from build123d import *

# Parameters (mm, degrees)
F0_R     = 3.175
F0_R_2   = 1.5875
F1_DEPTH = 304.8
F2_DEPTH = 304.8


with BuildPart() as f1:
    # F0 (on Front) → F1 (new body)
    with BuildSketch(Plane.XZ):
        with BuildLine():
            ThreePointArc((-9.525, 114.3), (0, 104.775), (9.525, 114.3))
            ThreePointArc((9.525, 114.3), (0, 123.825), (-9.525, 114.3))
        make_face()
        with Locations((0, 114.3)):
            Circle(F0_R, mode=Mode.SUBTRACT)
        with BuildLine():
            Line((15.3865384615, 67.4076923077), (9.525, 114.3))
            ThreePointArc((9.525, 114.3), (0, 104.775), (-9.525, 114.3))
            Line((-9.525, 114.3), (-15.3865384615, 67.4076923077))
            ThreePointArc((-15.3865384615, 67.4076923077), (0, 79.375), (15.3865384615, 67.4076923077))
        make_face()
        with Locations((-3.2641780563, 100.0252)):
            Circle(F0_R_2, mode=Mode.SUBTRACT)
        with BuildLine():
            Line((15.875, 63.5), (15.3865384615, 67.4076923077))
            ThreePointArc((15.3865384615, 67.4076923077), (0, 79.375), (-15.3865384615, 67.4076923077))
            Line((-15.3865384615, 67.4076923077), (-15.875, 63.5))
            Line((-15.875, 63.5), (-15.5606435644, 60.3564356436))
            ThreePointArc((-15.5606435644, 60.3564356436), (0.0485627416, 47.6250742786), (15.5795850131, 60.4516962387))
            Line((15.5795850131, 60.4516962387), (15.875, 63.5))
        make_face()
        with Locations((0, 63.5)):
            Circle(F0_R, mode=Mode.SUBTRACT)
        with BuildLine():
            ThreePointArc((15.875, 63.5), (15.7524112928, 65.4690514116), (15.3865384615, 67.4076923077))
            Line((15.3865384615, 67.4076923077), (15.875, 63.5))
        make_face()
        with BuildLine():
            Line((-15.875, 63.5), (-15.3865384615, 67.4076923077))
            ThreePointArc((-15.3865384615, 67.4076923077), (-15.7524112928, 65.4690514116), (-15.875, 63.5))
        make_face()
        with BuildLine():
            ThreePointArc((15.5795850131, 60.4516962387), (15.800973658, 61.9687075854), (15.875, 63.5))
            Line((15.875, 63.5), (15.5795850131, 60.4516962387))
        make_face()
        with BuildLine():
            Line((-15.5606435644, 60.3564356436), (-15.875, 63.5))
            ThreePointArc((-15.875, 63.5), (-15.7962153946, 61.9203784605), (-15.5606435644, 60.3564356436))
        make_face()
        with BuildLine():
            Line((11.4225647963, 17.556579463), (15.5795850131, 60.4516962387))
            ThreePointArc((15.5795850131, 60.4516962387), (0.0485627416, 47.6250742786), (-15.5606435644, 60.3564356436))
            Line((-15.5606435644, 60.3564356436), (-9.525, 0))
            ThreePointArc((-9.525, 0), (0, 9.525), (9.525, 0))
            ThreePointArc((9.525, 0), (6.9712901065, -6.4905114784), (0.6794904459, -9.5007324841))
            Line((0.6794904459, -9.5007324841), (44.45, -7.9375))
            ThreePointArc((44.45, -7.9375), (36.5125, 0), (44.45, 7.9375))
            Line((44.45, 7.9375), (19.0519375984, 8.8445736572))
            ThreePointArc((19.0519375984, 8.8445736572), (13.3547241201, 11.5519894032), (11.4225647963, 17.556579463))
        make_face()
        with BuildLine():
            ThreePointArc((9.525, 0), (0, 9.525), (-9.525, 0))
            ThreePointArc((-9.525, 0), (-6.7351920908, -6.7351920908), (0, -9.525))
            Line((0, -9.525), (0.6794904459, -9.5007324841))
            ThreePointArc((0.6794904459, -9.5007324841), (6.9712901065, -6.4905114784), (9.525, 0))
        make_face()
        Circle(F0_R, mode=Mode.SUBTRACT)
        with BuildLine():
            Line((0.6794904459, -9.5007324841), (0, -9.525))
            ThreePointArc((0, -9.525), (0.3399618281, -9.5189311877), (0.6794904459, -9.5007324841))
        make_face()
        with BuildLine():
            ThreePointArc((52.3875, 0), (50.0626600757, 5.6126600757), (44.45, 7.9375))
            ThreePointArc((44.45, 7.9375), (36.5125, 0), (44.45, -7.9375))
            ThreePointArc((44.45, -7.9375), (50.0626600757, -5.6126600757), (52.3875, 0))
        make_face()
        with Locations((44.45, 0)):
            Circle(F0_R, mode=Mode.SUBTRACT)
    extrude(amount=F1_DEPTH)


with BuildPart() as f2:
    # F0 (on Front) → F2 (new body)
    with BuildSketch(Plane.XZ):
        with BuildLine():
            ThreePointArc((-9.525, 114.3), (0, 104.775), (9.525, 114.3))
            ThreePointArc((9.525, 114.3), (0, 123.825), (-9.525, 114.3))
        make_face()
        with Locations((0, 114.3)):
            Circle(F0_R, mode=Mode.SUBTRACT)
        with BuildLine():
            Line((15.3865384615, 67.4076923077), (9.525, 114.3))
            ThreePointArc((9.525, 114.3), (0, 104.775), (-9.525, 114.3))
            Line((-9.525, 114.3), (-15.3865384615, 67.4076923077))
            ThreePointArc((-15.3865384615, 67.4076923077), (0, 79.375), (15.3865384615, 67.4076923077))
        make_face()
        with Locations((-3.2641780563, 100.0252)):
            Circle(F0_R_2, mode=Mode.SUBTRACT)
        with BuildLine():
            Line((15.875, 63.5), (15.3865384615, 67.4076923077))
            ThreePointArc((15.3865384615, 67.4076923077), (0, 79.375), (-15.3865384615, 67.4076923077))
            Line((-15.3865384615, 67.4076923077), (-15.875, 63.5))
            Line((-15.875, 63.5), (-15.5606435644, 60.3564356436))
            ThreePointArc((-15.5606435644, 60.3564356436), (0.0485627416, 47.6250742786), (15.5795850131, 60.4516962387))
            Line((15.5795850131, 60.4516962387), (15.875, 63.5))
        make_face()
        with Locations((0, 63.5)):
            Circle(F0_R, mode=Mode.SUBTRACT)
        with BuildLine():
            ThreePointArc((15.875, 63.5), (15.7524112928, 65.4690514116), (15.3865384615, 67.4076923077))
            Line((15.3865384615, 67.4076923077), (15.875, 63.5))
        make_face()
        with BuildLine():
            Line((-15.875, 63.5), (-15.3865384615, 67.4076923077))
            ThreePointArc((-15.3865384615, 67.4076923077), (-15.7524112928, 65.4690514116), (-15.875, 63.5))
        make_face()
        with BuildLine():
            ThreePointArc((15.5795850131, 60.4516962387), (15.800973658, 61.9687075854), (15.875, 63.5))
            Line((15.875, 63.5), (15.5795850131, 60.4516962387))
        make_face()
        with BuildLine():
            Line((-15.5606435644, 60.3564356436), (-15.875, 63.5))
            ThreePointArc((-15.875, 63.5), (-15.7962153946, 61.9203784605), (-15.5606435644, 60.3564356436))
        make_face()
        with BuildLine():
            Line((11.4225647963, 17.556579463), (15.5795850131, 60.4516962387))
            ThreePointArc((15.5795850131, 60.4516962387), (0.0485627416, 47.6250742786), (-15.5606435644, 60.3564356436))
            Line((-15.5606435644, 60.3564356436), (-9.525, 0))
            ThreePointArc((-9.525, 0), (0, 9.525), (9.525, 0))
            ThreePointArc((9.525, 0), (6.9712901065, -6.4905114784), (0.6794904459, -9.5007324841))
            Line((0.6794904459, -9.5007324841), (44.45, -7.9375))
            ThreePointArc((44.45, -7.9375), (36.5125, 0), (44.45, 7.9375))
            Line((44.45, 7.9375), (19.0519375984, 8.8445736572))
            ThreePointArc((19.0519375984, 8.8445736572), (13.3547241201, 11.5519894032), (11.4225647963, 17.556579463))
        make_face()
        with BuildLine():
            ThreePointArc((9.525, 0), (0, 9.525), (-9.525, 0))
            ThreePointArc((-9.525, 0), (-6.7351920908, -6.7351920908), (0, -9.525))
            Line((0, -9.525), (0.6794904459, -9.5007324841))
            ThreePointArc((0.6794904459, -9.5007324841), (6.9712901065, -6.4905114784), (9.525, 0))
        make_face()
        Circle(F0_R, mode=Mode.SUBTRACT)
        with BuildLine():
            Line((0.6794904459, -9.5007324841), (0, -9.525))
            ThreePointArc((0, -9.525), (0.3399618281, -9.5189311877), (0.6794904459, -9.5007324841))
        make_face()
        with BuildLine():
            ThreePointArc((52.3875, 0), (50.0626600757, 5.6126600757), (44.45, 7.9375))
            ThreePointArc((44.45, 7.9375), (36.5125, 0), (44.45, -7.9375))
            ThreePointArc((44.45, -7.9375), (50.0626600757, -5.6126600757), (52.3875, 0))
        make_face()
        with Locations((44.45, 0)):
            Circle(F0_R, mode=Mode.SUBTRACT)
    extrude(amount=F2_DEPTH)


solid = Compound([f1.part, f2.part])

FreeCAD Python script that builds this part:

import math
import FreeCAD as App
import Part
import Sketcher
from FreeCAD import Vector
Q = App.Units.Quantity

doc = App.newDocument("Part")
body = doc.addObject("PartDesign::Body", "Body")

# Sketch on XZ plane
sketch1 = doc.addObject("Sketcher::SketchObject", "Sketch")
body.addObject(sketch1)
sketch1.AttachmentSupport = (doc.XZ_Plane, [""])
sketch1.MapMode = "FlatFace"
sketch1.addGeometry([
    Part.ArcOfCircle(Part.Circle(Vector(0, 114.3, 0), Vector(0, 0, 1), 9.5), math.radians(0), math.radians(180)),  # 0
    Part.LineSegment(Vector(-9.5, 114.3, 0), Vector(-15.4, 67.4, 0)),  # 1
    Part.ArcOfCircle(Part.Circle(Vector(0, 63.5, 0), Vector(0, 0, 1), 15.9), math.radians(165.75), math.radians(180)),  # 2
    Part.ArcOfCircle(Part.Circle(Vector(0, 63.5, 0), Vector(0, 0, 1), 15.9), math.radians(180), math.radians(191.42)),  # 3
    Part.LineSegment(Vector(-15.6, 60.4, 0), Vector(-9.5, 0, 0)),  # 4
    Part.ArcOfCircle(Part.Circle(Vector(0, 0, 0), Vector(0, 0, 1), 9.5), math.radians(180), math.radians(270)),  # 5
    Part.ArcOfCircle(Part.Circle(Vector(0, 0, 0), Vector(0, 0, 1), 9.5), math.radians(-90), math.radians(-85.91)),  # 6
    Part.LineSegment(Vector(0.7, -9.5, 0), Vector(44.5, -7.9, 0)),  # 7
    Part.ArcOfCircle(Part.Circle(Vector(44.5, 0, 0), Vector(0, 0, 1), 7.9), math.radians(-90), math.radians(0)),  # 8
    Part.ArcOfCircle(Part.Circle(Vector(44.5, 0, 0), Vector(0, 0, 1), 7.9), math.radians(0), math.radians(90)),  # 9
    Part.LineSegment(Vector(44.5, 7.9, 0), Vector(19.1, 8.8, 0)),  # 10
    Part.ArcOfCircle(Part.Circle(Vector(19.3, 16.8, 0), Vector(0, 0, 1), 8), math.radians(174), math.radians(268)),  # 11
    Part.LineSegment(Vector(11.4, 17.6, 0), Vector(15.6, 60.5, 0)),  # 12
    Part.ArcOfCircle(Part.Circle(Vector(0, 63.5, 0), Vector(0, 0, 1), 15.9), math.radians(-11.07), math.radians(0)),  # 13
    Part.ArcOfCircle(Part.Circle(Vector(0, 63.5, 0), Vector(0, 0, 1), 15.9), math.radians(0), math.radians(14.25)),  # 14
    Part.LineSegment(Vector(15.4, 67.4, 0), Vector(9.5, 114.3, 0)),  # 15
    Part.Circle(Vector(0, 0, 0), Vector(0, 0, 1), 3.2),  # 16
    Part.Circle(Vector(44.5, 0, 0), Vector(0, 0, 1), 3.2),  # 17
    Part.Circle(Vector(0, 63.5, 0), Vector(0, 0, 1), 3.2),  # 18
    Part.Circle(Vector(-3.3, 100, 0), Vector(0, 0, 1), 1.6),  # 19
    Part.Circle(Vector(0, 114.3, 0), Vector(0, 0, 1), 3.2),  # 20
], False)
sketch1.addConstraint([
    Sketcher.Constraint("Coincident", 0, 2, 1, 1),
    Sketcher.Constraint("Coincident", 1, 2, 2, 1),
    Sketcher.Constraint("Tangent", 2, 2, 3, 1),
    Sketcher.Constraint("Coincident", 3, 2, 4, 1),
    Sketcher.Constraint("Coincident", 4, 2, 5, 1),
    Sketcher.Constraint("Tangent", 5, 2, 6, 1),
    Sketcher.Constraint("Coincident", 6, 2, 7, 1),
    Sketcher.Constraint("Coincident", 7, 2, 8, 1),
    Sketcher.Constraint("Tangent", 8, 2, 9, 1),
    Sketcher.Constraint("Coincident", 9, 2, 10, 1),
    Sketcher.Constraint("Tangent", 10, 2, 11, 2),
    Sketcher.Constraint("Tangent", 11, 1, 12, 1),
    Sketcher.Constraint("Coincident", 12, 2, 13, 1),
    Sketcher.Constraint("Tangent", 13, 2, 14, 1),
    Sketcher.Constraint("Coincident", 14, 2, 15, 1),
    Sketcher.Constraint("Coincident", 15, 2, 0, 1),
    Sketcher.Constraint("Coincident", 5, 3, -1, 1),
    Sketcher.Constraint("Coincident", 16, 3, -1, 1),
    Sketcher.Constraint("Coincident", 13, 3, 2, 3),
    Sketcher.Constraint("Coincident", 17, 3, 8, 3),
    Sketcher.Constraint("Coincident", 18, 3, 2, 3),
    Sketcher.Constraint("Coincident", 20, 3, 0, 3),
    Sketcher.Constraint("Equal", 2, 3),
    Sketcher.Constraint("Equal", 0, 5),
    Sketcher.Constraint("Equal", 5, 6),
    Sketcher.Constraint("Equal", 8, 9),
    Sketcher.Constraint("Equal", 3, 13),
    Sketcher.Constraint("Equal", 13, 14),
    Sketcher.Constraint("Equal", 16, 17),
    Sketcher.Constraint("Equal", 17, 18),
    Sketcher.Constraint("Equal", 18, 20),
    Sketcher.Constraint("Symmetric", 2, 2, 13, 2, -2),
    Sketcher.Constraint("Symmetric", 0, 2, 15, 2, -2),
    Sketcher.Constraint("Symmetric", 7, 2, 9, 2, -1),
    Sketcher.Constraint("PointOnObject", 4, 2, -1),
    Sketcher.Constraint("PointOnObject", 5, 2, -2),
    Sketcher.Constraint("PointOnObject", 8, 2, -1),
    Sketcher.Constraint("Horizontal", 20, 3, 0, 2),
    Sketcher.Constraint("Horizontal", 18, 3, 2, 2),
    Sketcher.Constraint("Horizontal", 1, 2, 14, 2),
    Sketcher.Constraint("Vertical", 17, 3, 7, 2),
    Sketcher.Constraint("Diameter", 16, Q("0.25 in")),
    Sketcher.Constraint("Diameter", 19, Q("0.125 in")),
    Sketcher.Constraint("Radius", 0, Q("0.375 in")),
    Sketcher.Constraint("Radius", 2, Q("0.625 in")),
    Sketcher.Constraint("Radius", 8, Q("0.3125 in")),
    Sketcher.Constraint("Radius", 11, Q("0.313 in")),
    Sketcher.Constraint("DistanceY", 2, 3, 0, 3, Q("2 in")),
    Sketcher.Constraint("DistanceY", -1, 1, 0, 3, Q("4.5 in")),
    Sketcher.Constraint("DistanceX", -1, 1, 8, 3, Q("1.75 in")),
    Sketcher.Constraint("DistanceY", -1, 1, 19, 3, Q("3.938 in")),
    Sketcher.Constraint("DistanceY", -1, 1, 11, 3, Q("16.789708 mm")),
    Sketcher.Constraint("DistanceX", 19, 3, -1, 1, Q("3.264178 mm")),
    Sketcher.Constraint("DistanceX", 1, 2, -1, 1, Q("15.386538 mm")),
    Sketcher.Constraint("DistanceX", -1, 1, 6, 2, Q("0.67949 mm")),
    Sketcher.Constraint("DistanceY", -1, 1, 11, 1, Q("17.556579 mm")),
    Sketcher.Constraint("Distance", 4, Q("60.657467 mm")),
    Sketcher.Constraint("Distance", 10, Q("25.414255 mm")),
])
pad1 = doc.addObject("PartDesign::Pad", "Pad")
body.addObject(pad1)
pad1.Profile = sketch1
pad1.Length = Q("12 in")
body2 = doc.addObject("PartDesign::Body", "Body001")

# Sketch on XZ plane
sketch2 = doc.addObject("Sketcher::SketchObject", "Sketch001")
body2.addObject(sketch2)
sketch2.AttachmentSupport = (doc.getObject("XZ_Plane001"), [""])
sketch2.MapMode = "FlatFace"
sketch2.addGeometry([
    Part.ArcOfCircle(Part.Circle(Vector(0, 114.3, 0), Vector(0, 0, 1), 9.5), math.radians(0), math.radians(180)),  # 0
    Part.LineSegment(Vector(-9.5, 114.3, 0), Vector(-15.4, 67.4, 0)),  # 1
    Part.ArcOfCircle(Part.Circle(Vector(0, 63.5, 0), Vector(0, 0, 1), 15.9), math.radians(165.75), math.radians(180)),  # 2
    Part.ArcOfCircle(Part.Circle(Vector(0, 63.5, 0), Vector(0, 0, 1), 15.9), math.radians(180), math.radians(191.42)),  # 3
    Part.LineSegment(Vector(-15.6, 60.4, 0), Vector(-9.5, 0, 0)),  # 4
    Part.ArcOfCircle(Part.Circle(Vector(0, 0, 0), Vector(0, 0, 1), 9.5), math.radians(180), math.radians(270)),  # 5
    Part.ArcOfCircle(Part.Circle(Vector(0, 0, 0), Vector(0, 0, 1), 9.5), math.radians(-90), math.radians(-85.91)),  # 6
    Part.LineSegment(Vector(0.7, -9.5, 0), Vector(44.5, -7.9, 0)),  # 7
    Part.ArcOfCircle(Part.Circle(Vector(44.5, 0, 0), Vector(0, 0, 1), 7.9), math.radians(-90), math.radians(0)),  # 8
    Part.ArcOfCircle(Part.Circle(Vector(44.5, 0, 0), Vector(0, 0, 1), 7.9), math.radians(0), math.radians(90)),  # 9
    Part.LineSegment(Vector(44.5, 7.9, 0), Vector(19.1, 8.8, 0)),  # 10
    Part.ArcOfCircle(Part.Circle(Vector(19.3, 16.8, 0), Vector(0, 0, 1), 8), math.radians(174), math.radians(268)),  # 11
    Part.LineSegment(Vector(11.4, 17.6, 0), Vector(15.6, 60.5, 0)),  # 12
    Part.ArcOfCircle(Part.Circle(Vector(0, 63.5, 0), Vector(0, 0, 1), 15.9), math.radians(-11.07), math.radians(0)),  # 13
    Part.ArcOfCircle(Part.Circle(Vector(0, 63.5, 0), Vector(0, 0, 1), 15.9), math.radians(0), math.radians(14.25)),  # 14
    Part.LineSegment(Vector(15.4, 67.4, 0), Vector(9.5, 114.3, 0)),  # 15
    Part.Circle(Vector(0, 0, 0), Vector(0, 0, 1), 3.2),  # 16
    Part.Circle(Vector(44.5, 0, 0), Vector(0, 0, 1), 3.2),  # 17
    Part.Circle(Vector(0, 63.5, 0), Vector(0, 0, 1), 3.2),  # 18
    Part.Circle(Vector(-3.3, 100, 0), Vector(0, 0, 1), 1.6),  # 19
    Part.Circle(Vector(0, 114.3, 0), Vector(0, 0, 1), 3.2),  # 20
], False)
sketch2.addConstraint([
    Sketcher.Constraint("Coincident", 0, 2, 1, 1),
    Sketcher.Constraint("Coincident", 1, 2, 2, 1),
    Sketcher.Constraint("Tangent", 2, 2, 3, 1),
    Sketcher.Constraint("Coincident", 3, 2, 4, 1),
    Sketcher.Constraint("Coincident", 4, 2, 5, 1),
    Sketcher.Constraint("Tangent", 5, 2, 6, 1),
    Sketcher.Constraint("Coincident", 6, 2, 7, 1),
    Sketcher.Constraint("Coincident", 7, 2, 8, 1),
    Sketcher.Constraint("Tangent", 8, 2, 9, 1),
    Sketcher.Constraint("Coincident", 9, 2, 10, 1),
    Sketcher.Constraint("Tangent", 10, 2, 11, 2),
    Sketcher.Constraint("Tangent", 11, 1, 12, 1),
    Sketcher.Constraint("Coincident", 12, 2, 13, 1),
    Sketcher.Constraint("Tangent", 13, 2, 14, 1),
    Sketcher.Constraint("Coincident", 14, 2, 15, 1),
    Sketcher.Constraint("Coincident", 15, 2, 0, 1),
    Sketcher.Constraint("Coincident", 5, 3, -1, 1),
    Sketcher.Constraint("Coincident", 16, 3, -1, 1),
    Sketcher.Constraint("Coincident", 13, 3, 2, 3),
    Sketcher.Constraint("Coincident", 17, 3, 8, 3),
    Sketcher.Constraint("Coincident", 18, 3, 2, 3),
    Sketcher.Constraint("Coincident", 20, 3, 0, 3),
    Sketcher.Constraint("Equal", 2, 3),
    Sketcher.Constraint("Equal", 0, 5),
    Sketcher.Constraint("Equal", 5, 6),
    Sketcher.Constraint("Equal", 8, 9),
    Sketcher.Constraint("Equal", 3, 13),
    Sketcher.Constraint("Equal", 13, 14),
    Sketcher.Constraint("Equal", 16, 17),
    Sketcher.Constraint("Equal", 17, 18),
    Sketcher.Constraint("Equal", 18, 20),
    Sketcher.Constraint("Symmetric", 2, 2, 13, 2, -2),
    Sketcher.Constraint("Symmetric", 0, 2, 15, 2, -2),
    Sketcher.Constraint("Symmetric", 7, 2, 9, 2, -1),
    Sketcher.Constraint("PointOnObject", 4, 2, -1),
    Sketcher.Constraint("PointOnObject", 5, 2, -2),
    Sketcher.Constraint("PointOnObject", 8, 2, -1),
    Sketcher.Constraint("Horizontal", 20, 3, 0, 2),
    Sketcher.Constraint("Horizontal", 18, 3, 2, 2),
    Sketcher.Constraint("Horizontal", 1, 2, 14, 2),
    Sketcher.Constraint("Vertical", 17, 3, 7, 2),
    Sketcher.Constraint("Diameter", 16, Q("0.25 in")),
    Sketcher.Constraint("Diameter", 19, Q("0.125 in")),
    Sketcher.Constraint("Radius", 0, Q("0.375 in")),
    Sketcher.Constraint("Radius", 2, Q("0.625 in")),
    Sketcher.Constraint("Radius", 8, Q("0.3125 in")),
    Sketcher.Constraint("Radius", 11, Q("0.313 in")),
    Sketcher.Constraint("DistanceY", 2, 3, 0, 3, Q("2 in")),
    Sketcher.Constraint("DistanceY", -1, 1, 0, 3, Q("4.5 in")),
    Sketcher.Constraint("DistanceX", -1, 1, 8, 3, Q("1.75 in")),
    Sketcher.Constraint("DistanceY", -1, 1, 19, 3, Q("3.938 in")),
    Sketcher.Constraint("DistanceY", -1, 1, 11, 3, Q("16.789708 mm")),
    Sketcher.Constraint("DistanceX", 19, 3, -1, 1, Q("3.264178 mm")),
    Sketcher.Constraint("DistanceX", 1, 2, -1, 1, Q("15.386538 mm")),
    Sketcher.Constraint("DistanceX", -1, 1, 6, 2, Q("0.67949 mm")),
    Sketcher.Constraint("DistanceY", -1, 1, 11, 1, Q("17.556579 mm")),
    Sketcher.Constraint("Distance", 4, Q("60.657467 mm")),
    Sketcher.Constraint("Distance", 10, Q("25.414255 mm")),
])
pad2 = doc.addObject("PartDesign::Pad", "Pad001")
body2.addObject(pad2)
pad2.Profile = sketch2
pad2.Length = Q("12 in")

doc.recompute()
